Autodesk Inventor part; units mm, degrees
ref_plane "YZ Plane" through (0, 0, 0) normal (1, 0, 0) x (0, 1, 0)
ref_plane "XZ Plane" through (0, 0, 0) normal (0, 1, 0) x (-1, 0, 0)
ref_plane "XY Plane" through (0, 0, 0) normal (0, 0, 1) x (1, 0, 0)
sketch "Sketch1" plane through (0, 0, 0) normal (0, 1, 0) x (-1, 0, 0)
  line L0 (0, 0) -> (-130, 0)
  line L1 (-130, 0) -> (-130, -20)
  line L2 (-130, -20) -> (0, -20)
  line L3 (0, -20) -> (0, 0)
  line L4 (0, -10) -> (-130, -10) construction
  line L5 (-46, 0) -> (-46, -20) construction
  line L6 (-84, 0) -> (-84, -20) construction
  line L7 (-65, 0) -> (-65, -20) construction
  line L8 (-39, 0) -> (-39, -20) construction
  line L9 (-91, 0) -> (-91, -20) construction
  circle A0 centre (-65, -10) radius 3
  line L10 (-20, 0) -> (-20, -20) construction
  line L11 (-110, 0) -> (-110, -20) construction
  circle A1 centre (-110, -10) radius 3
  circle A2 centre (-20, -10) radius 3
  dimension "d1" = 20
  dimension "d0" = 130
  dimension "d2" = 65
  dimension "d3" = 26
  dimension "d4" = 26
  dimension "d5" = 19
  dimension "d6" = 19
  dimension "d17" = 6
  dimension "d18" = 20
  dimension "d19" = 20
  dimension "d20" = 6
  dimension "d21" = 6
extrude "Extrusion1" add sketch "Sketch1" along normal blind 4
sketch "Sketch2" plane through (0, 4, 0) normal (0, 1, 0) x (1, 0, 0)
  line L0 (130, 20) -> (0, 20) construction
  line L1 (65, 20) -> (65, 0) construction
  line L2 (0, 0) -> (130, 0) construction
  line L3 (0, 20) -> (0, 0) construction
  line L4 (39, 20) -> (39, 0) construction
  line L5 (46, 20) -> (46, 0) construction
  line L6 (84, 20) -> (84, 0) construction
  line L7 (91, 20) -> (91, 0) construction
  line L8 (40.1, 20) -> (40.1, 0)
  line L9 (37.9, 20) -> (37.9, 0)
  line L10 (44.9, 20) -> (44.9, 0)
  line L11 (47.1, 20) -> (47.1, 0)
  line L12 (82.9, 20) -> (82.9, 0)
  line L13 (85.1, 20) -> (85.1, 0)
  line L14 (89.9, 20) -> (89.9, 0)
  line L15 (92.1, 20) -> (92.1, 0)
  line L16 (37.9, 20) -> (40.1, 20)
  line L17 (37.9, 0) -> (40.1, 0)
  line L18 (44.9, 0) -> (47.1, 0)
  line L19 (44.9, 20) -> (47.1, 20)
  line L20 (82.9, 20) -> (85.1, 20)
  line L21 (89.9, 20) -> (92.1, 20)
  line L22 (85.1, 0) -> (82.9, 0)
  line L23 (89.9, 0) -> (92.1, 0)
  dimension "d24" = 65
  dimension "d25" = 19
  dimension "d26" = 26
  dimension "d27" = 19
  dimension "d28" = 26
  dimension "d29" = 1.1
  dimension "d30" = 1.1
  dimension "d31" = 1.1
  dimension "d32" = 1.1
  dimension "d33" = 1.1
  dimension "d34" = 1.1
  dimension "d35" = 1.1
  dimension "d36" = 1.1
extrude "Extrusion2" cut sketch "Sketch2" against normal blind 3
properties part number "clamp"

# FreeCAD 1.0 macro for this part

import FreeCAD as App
import Part
import Sketcher

doc = App.newDocument("Part")
params = doc.addObject("Spreadsheet::Sheet", "Params")
for row, (alias, value) in enumerate([
    ("sketch1_diameter", "6 mm"),
    ("sketch1_width", "130 mm"),
    ("sketch1_height", "20 mm"),
    ("pad1_length", "4 mm"),
    ("sketch2_height", "20 mm"),
    ("sketch2_width", "2.2 mm"),
    ("pocket1_length", "3 mm"),
], start=1):
    params.set(f"A{row}", alias)
    params.set(f"B{row}", "=" + value)
    params.setAlias(f"B{row}", alias)

body = doc.addObject("PartDesign::Body", "Body")

sketch1 = doc.addObject("Sketcher::SketchObject", "Sketch")
body.addObject(sketch1)
sketch1.AttachmentSupport = (doc.XZ_Plane, [""])
sketch1.MapMode = "FlatFace"
sketch1.addGeometry(Part.LineSegment(App.Vector(0, -20, 0), App.Vector(0, 0, 0)), False)
sketch1.addGeometry(Part.LineSegment(App.Vector(0, 0, 0), App.Vector(130, 0, 0)), False)
sketch1.addGeometry(Part.LineSegment(App.Vector(130, 0, 0), App.Vector(130, -20, 0)), False)
sketch1.addGeometry(Part.LineSegment(App.Vector(130, -20, 0), App.Vector(0, -20, 0)), False)
sketch1.addGeometry(Part.Circle(App.Vector(110, -10, 0), App.Vector(0, 0, 1), 3), False)
sketch1.addGeometry(Part.Circle(App.Vector(65, -10, 0), App.Vector(0, 0, 1), 3), False)
sketch1.addGeometry(Part.Circle(App.Vector(20, -10, 0), App.Vector(0, 0, 1), 3), False)
sketch1.addConstraint(Sketcher.Constraint("Coincident", 0, 2, 1, 1))
sketch1.addConstraint(Sketcher.Constraint("Coincident", 1, 2, 2, 1))
sketch1.addConstraint(Sketcher.Constraint("Coincident", 2, 2, 3, 1))
sketch1.addConstraint(Sketcher.Constraint("Coincident", 3, 2, 0, 1))
sketch1.addConstraint(Sketcher.Constraint("Vertical", 0))
sketch1.addConstraint(Sketcher.Constraint("Horizontal", 1))
sketch1.addConstraint(Sketcher.Constraint("Vertical", 2))
sketch1.addConstraint(Sketcher.Constraint("Horizontal", 3))
sketch1.addConstraint(Sketcher.Constraint("Coincident", 0, 2, -1, 1))
sketch1.addConstraint(Sketcher.Constraint("Equal", 4, 5))
sketch1.addConstraint(Sketcher.Constraint("Equal", 5, 6))
sketch1.addConstraint(Sketcher.Constraint("Horizontal", 4, 3, 5, 3))
sketch1.addConstraint(Sketcher.Constraint("Horizontal", 5, 3, 6, 3))
sketch1.addConstraint(Sketcher.Constraint("Diameter", 4, 6.0))
sketch1.addConstraint(Sketcher.Constraint("DistanceX", 1, 1, 1, 2, 130.0))
sketch1.addConstraint(Sketcher.Constraint("DistanceY", 0, 1, 0, 2, 20.0))
sketch1.addConstraint(Sketcher.Constraint("DistanceX", -1, 1, 5, 3, 65.0))
sketch1.addConstraint(Sketcher.Constraint("DistanceX", -1, 1, 6, 3, 20.0))
sketch1.addConstraint(Sketcher.Constraint("DistanceX", 4, 3, 1, 2, 20.0))
sketch1.addConstraint(Sketcher.Constraint("DistanceY", 4, 3, -1, 1, 10.0))
sketch1.setExpression("Constraints[13]", "Params.sketch1_diameter")
sketch1.setExpression("Constraints[14]", "Params.sketch1_width")
sketch1.setExpression("Constraints[15]", "Params.sketch1_height")
pad1 = doc.addObject("PartDesign::Pad", "Pad")
body.addObject(pad1)
pad1.Profile = sketch1
pad1.setExpression("Length", "Params.pad1_length")
pad1.Reversed = True

sketch2 = doc.addObject("Sketcher::SketchObject", "Sketch001")
body.addObject(sketch2)
sketch2.AttachmentSupport = (doc.XZ_Plane, [""])
sketch2.MapMode = "FlatFace"
sketch2.AttachmentOffset = App.Placement(App.Vector(0, 0, -4), App.Rotation())
sketch2.addGeometry(Part.LineSegment(App.Vector(40.1, 0, 0), App.Vector(40.1, -20, 0)), False)
sketch2.addGeometry(Part.LineSegment(App.Vector(40.1, -20, 0), App.Vector(37.9, -20, 0)), False)
sketch2.addGeometry(Part.LineSegment(App.Vector(37.9, -20, 0), App.Vector(37.9, 0, 0)), False)
sketch2.addGeometry(Part.LineSegment(App.Vector(37.9, 0, 0), App.Vector(40.1, 0, 0)), False)
sketch2.addGeometry(Part.LineSegment(App.Vector(47.1, -20, 0), App.Vector(44.9, -20, 0)), False)
sketch2.addGeometry(Part.LineSegment(App.Vector(44.9, -20, 0), App.Vector(44.9, 0, 0)), False)
sketch2.addGeometry(Part.LineSegment(App.Vector(44.9, 0, 0), App.Vector(47.1, 0, 0)), False)
sketch2.addGeometry(Part.LineSegment(App.Vector(47.1, 0, 0), App.Vector(47.1, -20, 0)), False)
sketch2.addGeometry(Part.LineSegment(App.Vector(85.1, -20, 0), App.Vector(82.9, -20, 0)), False)
sketch2.addGeometry(Part.LineSegment(App.Vector(82.9, -20, 0), App.Vector(82.9, 0, 0)), False)
sketch2.addGeometry(Part.LineSegment(App.Vector(82.9, 0, 0), App.Vector(85.1, 0, 0)), False)
sketch2.addGeometry(Part.LineSegment(App.Vector(85.1, 0, 0), App.Vector(85.1, -20, 0)), False)
sketch2.addGeometry(Part.LineSegment(App.Vector(92.1, -20, 0), App.Vector(89.9, -20, 0)), False)
sketch2.addGeometry(Part.LineSegment(App.Vector(89.9, -20, 0), App.Vector(89.9, 0, 0)), False)
sketch2.addGeometry(Part.LineSegment(App.Vector(89.9, 0, 0), App.Vector(92.1, 0, 0)), False)
sketch2.addGeometry(Part.LineSegment(App.Vector(92.1, 0, 0), App.Vector(92.1, -20, 0)), False)
sketch2.addConstraint(Sketcher.Constraint("Coincident", 0, 2, 1, 1))
sketch2.addConstraint(Sketcher.Constraint("Coincident", 1, 2, 2, 1))
sketch2.addConstraint(Sketcher.Constraint("Coincident", 2, 2, 3, 1))
sketch2.addConstraint(Sketcher.Constraint("Coincident", 3, 2, 0, 1))
sketch2.addConstraint(Sketcher.Constraint("Coincident", 4, 2, 5, 1))
sketch2.addConstraint(Sketcher.Constraint("Coincident", 5, 2, 6, 1))
sketch2.addConstraint(Sketcher.Constraint("Coincident", 6, 2, 7, 1))
sketch2.addConstraint(Sketcher.Constraint("Coincident", 7, 2, 4, 1))
sketch2.addConstraint(Sketcher.Constraint("Coincident", 8, 2, 9, 1))
sketch2.addConstraint(Sketcher.Constraint("Coincident", 9, 2, 10, 1))
sketch2.addConstraint(Sketcher.Constraint("Coincident", 10, 2, 11, 1))
sketch2.addConstraint(Sketcher.Constraint("Coincident", 11, 2, 8, 1))
sketch2.addConstraint(Sketcher.Constraint("Coincident", 12, 2, 13, 1))
sketch2.addConstraint(Sketcher.Constraint("Coincident", 13, 2, 14, 1))
sketch2.addConstraint(Sketcher.Constraint("Coincident", 14, 2, 15, 1))
sketch2.addConstraint(Sketcher.Constraint("Coincident", 15, 2, 12, 1))
sketch2.addConstraint(Sketcher.Constraint("Vertical", 0))
sketch2.addConstraint(Sketcher.Constraint("Horizontal", 1))
sketch2.addConstraint(Sketcher.Constraint("Vertical", 2))
sketch2.addConstraint(Sketcher.Constraint("Horizontal", 3))
sketch2.addConstraint(Sketcher.Constraint("Horizontal", 4))
sketch2.addConstraint(Sketcher.Constraint("Vertical", 5))
sketch2.addConstraint(Sketcher.Constraint("Horizontal", 6))
sketch2.addConstraint(Sketcher.Constraint("Vertical", 7))
sketch2.addConstraint(Sketcher.Constraint("Horizontal", 8))
sketch2.addConstraint(Sketcher.Constraint("Vertical", 9))
sketch2.addConstraint(Sketcher.Constraint("Horizontal", 10))
sketch2.addConstraint(Sketcher.Constraint("Vertical", 11))
sketch2.addConstraint(Sketcher.Constraint("Horizontal", 12))
sketch2.addConstraint(Sketcher.Constraint("Vertical", 13))
sketch2.addConstraint(Sketcher.Constraint("Horizontal", 14))
sketch2.addConstraint(Sketcher.Constraint("Vertical", 15))
sketch2.addConstraint(Sketcher.Constraint("PointOnObject", 2, 2, -1))
sketch2.addConstraint(Sketcher.Constraint("PointOnObject", 5, 2, -1))
sketch2.addConstraint(Sketcher.Constraint("PointOnObject", 9, 2, -1))
sketch2.addConstraint(Sketcher.Constraint("PointOnObject", 13, 2, -1))
sketch2.addConstraint(Sketcher.Constraint("Horizontal", 1, 2, 4, 2))
sketch2.addConstraint(Sketcher.Constraint("Horizontal", 7, 2, 8, 2))
sketch2.addConstraint(Sketcher.Constraint("Horizontal", 11, 2, 12, 2))
sketch2.addConstraint(Sketcher.Constraint("Equal", 3, 4))
sketch2.addConstraint(Sketcher.Constraint("Equal", 6, 8))
sketch2.addConstraint(Sketcher.Constraint("Equal", 10, 12))
sketch2.addConstraint(Sketcher.Constraint("DistanceY", 0, 2, 0, 1, 20.0))
sketch2.addConstraint(Sketcher.Constraint("DistanceX", 1, 2, 1, 1, 2.2))
sketch2.addConstraint(Sketcher.Constraint("DistanceX", 1, 2, 4, 2, 7.0))
sketch2.addConstraint(Sketcher.Constraint("DistanceX", 4, 2, 8, 2, 38.0))
sketch2.addConstraint(Sketcher.Constraint("DistanceX", 8, 2, 12, 2, 7.0))
sketch2.addConstraint(Sketcher.Constraint("DistanceX", -1, 1, 0, 2, 40.1))
sketch2.setExpression("Constraints[42]", "Params.sketch2_height")
sketch2.setExpression("Constraints[43]", "Params.sketch2_width")
pocket1 = doc.addObject("PartDesign::Pocket", "Pocket")
body.addObject(pocket1)
pocket1.Profile = sketch2
pocket1.setExpression("Length", "Params.pocket1_length")
pocket1.Reversed = True

doc.recompute()
